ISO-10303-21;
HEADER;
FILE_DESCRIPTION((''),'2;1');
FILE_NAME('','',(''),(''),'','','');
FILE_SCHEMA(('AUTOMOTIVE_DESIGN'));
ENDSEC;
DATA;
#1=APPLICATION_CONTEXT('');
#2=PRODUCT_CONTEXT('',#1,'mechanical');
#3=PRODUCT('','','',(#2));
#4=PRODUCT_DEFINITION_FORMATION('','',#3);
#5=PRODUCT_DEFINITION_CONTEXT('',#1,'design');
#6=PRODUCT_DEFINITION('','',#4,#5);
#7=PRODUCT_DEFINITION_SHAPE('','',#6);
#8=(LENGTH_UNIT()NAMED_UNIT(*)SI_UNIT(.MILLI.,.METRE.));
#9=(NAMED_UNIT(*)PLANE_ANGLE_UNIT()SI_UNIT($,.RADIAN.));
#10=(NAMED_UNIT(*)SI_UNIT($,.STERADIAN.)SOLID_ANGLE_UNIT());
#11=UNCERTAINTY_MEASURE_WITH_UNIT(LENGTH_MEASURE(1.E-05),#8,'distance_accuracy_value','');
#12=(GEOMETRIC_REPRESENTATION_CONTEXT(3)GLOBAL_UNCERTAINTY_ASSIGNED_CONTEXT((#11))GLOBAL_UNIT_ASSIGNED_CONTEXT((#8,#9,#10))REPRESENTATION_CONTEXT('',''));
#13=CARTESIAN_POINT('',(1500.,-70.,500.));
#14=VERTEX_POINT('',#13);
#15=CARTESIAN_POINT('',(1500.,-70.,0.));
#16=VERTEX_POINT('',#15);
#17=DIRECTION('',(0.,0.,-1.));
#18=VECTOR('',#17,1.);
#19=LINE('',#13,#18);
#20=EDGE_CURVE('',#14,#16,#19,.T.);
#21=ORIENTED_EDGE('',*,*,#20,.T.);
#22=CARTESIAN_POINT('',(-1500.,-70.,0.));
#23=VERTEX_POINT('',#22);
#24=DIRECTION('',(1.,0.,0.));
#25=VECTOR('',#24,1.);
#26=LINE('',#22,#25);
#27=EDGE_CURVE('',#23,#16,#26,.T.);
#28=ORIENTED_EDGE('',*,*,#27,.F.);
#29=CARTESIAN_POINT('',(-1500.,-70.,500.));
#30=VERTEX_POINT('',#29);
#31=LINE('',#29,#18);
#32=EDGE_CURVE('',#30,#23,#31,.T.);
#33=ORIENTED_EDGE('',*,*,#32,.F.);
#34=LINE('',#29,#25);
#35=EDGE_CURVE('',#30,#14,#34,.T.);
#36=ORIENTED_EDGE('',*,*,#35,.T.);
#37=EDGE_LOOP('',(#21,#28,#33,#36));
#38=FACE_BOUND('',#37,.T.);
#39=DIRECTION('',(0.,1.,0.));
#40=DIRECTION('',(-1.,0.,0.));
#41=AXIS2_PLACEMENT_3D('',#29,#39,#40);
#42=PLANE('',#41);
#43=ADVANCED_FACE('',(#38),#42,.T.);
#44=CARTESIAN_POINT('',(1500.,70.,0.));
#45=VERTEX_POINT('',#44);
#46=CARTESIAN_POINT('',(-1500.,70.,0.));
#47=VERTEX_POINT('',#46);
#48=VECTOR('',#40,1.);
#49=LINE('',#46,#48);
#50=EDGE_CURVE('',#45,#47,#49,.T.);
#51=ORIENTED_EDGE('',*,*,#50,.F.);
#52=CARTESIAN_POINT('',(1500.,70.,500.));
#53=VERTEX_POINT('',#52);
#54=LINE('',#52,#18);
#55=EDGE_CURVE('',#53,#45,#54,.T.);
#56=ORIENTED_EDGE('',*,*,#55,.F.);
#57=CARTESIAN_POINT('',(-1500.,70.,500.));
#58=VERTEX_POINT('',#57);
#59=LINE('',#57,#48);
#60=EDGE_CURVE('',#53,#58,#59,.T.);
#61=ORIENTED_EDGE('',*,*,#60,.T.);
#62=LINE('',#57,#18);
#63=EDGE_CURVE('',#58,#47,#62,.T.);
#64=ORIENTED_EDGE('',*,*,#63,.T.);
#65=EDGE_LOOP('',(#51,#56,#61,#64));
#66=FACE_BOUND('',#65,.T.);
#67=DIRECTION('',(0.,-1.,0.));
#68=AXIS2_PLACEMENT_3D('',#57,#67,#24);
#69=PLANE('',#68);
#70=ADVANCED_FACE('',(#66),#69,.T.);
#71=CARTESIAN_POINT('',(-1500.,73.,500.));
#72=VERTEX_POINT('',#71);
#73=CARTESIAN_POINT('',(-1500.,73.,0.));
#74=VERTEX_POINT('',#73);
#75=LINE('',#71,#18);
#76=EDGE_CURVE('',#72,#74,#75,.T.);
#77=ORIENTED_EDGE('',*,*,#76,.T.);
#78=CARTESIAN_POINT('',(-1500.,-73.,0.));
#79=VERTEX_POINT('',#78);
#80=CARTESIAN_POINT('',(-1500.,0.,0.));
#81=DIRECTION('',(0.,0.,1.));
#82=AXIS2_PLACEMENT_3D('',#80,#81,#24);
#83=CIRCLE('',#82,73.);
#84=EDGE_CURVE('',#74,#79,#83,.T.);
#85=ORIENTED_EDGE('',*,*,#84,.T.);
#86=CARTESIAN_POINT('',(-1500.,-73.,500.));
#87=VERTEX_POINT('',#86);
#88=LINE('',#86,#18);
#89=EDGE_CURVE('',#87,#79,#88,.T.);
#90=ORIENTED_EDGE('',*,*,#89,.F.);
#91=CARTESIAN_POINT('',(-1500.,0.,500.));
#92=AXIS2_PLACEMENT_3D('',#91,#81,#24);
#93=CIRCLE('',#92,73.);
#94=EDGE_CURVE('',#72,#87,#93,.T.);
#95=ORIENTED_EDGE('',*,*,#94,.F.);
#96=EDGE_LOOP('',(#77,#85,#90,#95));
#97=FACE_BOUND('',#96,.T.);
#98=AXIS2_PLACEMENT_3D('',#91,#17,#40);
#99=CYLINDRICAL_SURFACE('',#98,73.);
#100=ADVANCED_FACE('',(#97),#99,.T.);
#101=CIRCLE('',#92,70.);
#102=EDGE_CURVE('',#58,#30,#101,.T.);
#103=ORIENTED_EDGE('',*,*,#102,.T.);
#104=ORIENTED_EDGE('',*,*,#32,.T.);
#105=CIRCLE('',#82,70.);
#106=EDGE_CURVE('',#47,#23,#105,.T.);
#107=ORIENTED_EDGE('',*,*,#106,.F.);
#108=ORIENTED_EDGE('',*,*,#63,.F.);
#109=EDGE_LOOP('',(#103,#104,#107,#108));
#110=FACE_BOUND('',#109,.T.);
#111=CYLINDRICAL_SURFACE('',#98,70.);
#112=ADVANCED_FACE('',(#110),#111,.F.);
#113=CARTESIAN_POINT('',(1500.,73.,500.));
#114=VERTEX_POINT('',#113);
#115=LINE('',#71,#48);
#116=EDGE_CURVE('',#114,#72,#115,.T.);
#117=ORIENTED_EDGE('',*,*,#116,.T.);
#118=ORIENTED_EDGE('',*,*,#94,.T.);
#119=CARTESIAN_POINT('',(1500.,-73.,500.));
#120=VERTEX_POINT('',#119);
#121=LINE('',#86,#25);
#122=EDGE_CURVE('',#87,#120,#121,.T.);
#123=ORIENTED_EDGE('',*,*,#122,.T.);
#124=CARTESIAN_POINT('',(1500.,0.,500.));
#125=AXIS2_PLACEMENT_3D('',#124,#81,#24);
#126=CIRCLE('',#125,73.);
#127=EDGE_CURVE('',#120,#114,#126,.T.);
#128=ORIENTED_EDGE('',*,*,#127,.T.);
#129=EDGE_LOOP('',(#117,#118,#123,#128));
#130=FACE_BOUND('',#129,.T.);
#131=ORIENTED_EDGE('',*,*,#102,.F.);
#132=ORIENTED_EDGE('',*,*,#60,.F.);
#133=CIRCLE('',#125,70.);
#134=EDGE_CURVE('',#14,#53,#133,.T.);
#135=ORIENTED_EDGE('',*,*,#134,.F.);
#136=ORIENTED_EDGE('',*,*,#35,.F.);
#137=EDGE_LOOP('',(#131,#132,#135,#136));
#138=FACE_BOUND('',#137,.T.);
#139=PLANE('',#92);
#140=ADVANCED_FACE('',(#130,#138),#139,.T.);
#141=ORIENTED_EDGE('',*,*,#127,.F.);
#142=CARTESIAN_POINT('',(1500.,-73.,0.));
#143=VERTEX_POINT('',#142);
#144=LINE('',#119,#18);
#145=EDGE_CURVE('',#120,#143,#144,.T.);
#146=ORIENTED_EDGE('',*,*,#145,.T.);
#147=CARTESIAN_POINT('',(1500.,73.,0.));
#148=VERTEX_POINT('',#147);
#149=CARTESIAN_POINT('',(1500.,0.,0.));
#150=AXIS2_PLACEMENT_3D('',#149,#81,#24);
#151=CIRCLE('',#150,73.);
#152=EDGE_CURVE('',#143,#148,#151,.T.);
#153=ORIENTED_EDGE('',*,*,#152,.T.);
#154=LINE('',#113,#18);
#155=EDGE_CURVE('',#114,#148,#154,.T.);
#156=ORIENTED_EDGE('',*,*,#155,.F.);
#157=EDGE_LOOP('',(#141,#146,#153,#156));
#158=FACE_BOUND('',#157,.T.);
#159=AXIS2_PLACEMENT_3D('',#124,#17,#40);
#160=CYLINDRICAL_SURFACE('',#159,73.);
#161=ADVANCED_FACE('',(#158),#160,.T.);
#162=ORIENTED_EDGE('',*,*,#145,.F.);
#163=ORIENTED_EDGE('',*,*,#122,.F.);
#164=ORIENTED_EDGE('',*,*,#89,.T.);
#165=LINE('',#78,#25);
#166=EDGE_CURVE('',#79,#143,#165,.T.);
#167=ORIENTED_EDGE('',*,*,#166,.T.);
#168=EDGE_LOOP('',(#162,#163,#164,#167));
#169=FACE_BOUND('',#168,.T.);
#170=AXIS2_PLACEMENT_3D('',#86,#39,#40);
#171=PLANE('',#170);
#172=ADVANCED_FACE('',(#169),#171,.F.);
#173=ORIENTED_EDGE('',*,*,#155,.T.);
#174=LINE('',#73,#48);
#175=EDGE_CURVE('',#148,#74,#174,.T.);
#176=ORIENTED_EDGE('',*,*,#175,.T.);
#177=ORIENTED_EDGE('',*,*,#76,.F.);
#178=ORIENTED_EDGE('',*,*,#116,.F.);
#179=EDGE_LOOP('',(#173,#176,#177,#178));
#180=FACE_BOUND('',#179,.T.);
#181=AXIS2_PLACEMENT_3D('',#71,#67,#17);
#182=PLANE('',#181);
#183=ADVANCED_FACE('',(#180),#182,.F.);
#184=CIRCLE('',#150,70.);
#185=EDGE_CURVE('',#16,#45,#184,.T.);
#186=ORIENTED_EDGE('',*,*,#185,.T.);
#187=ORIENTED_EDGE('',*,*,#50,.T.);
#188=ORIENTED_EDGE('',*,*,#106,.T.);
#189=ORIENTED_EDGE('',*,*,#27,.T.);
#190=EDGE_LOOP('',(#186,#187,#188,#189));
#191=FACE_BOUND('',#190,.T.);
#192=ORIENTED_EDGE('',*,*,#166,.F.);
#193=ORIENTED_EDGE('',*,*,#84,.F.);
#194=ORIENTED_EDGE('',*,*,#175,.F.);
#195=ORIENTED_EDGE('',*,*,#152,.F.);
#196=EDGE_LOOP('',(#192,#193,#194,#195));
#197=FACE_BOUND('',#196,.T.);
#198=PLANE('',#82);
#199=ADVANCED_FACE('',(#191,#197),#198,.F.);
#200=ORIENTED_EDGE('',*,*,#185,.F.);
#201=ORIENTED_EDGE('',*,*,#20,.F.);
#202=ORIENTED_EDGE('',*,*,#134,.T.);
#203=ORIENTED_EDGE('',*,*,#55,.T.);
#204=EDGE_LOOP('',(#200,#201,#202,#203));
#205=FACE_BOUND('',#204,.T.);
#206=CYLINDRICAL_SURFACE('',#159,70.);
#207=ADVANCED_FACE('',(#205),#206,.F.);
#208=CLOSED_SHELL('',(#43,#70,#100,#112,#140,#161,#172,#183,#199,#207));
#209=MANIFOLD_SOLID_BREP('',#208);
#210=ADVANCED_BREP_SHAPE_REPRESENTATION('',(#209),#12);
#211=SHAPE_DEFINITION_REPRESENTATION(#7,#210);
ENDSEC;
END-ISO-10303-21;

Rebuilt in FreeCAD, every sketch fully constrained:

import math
import FreeCAD as App
import Part
import Sketcher
from FreeCAD import Vector

doc = App.newDocument("Part")
body = doc.addObject("PartDesign::Body", "Body")

sketch1 = body.newObject("Sketcher::SketchObject", "Sketch")
sketch1.AttachmentSupport = (doc.getObject("XY_Plane"), [""])
sketch1.MapMode = "FlatFace"
sketch1.addGeometry([
    Part.LineSegment(Vector(1500, 73, 0), Vector(-1500, 73, 0)),
    Part.ArcOfCircle(Part.Circle(Vector(-1500, 0, 0), Vector(0, 0, 1), 73), math.radians(90), math.radians(270)),
    Part.LineSegment(Vector(-1500, -73, 0), Vector(1500, -73, 0)),
    Part.ArcOfCircle(Part.Circle(Vector(1500, 0, 0), Vector(0, 0, 1), 73), math.radians(-90), math.radians(90)),
    Part.LineSegment(Vector(-1500, 70, 0), Vector(1500, 70, 0)),
    Part.ArcOfCircle(Part.Circle(Vector(1500, 0, 0), Vector(0, 0, 1), 70), math.radians(-90), math.radians(90)),
    Part.LineSegment(Vector(1500, -70, 0), Vector(-1500, -70, 0)),
    Part.ArcOfCircle(Part.Circle(Vector(-1500, 0, 0), Vector(0, 0, 1), 70), math.radians(90), math.radians(270)),
], False)
sketch1.addConstraint([
    Sketcher.Constraint("Tangent", 0, 2, 1, 1),
    Sketcher.Constraint("Tangent", 1, 2, 2, 1),
    Sketcher.Constraint("Tangent", 2, 2, 3, 1),
    Sketcher.Constraint("Tangent", 3, 2, 0, 1),
    Sketcher.Constraint("Tangent", 4, 2, 5, 2),
    Sketcher.Constraint("Tangent", 5, 1, 6, 1),
    Sketcher.Constraint("Tangent", 6, 2, 7, 2),
    Sketcher.Constraint("Tangent", 7, 1, 4, 1),
    Sketcher.Constraint("Horizontal", 0),
    Sketcher.Constraint("Horizontal", 2),
    Sketcher.Constraint("Horizontal", 4),
    Sketcher.Constraint("Horizontal", 6),
    Sketcher.Constraint("Coincident", 5, 3, 3, 3),
    Sketcher.Constraint("Symmetric", 1, 3, 3, 3, -1, 1),
    Sketcher.Constraint("Vertical", 7, 3, 0, 2),
    Sketcher.Constraint("Radius", 1, 73.0),
    Sketcher.Constraint("Radius", 5, 70.0),
    Sketcher.Constraint("DistanceX", 0, 2, 0, 1, 3000.0),
])
pad1 = body.newObject("PartDesign::Pad", "Pad")
pad1.Profile = sketch1
pad1.Length = 500

doc.recompute()
